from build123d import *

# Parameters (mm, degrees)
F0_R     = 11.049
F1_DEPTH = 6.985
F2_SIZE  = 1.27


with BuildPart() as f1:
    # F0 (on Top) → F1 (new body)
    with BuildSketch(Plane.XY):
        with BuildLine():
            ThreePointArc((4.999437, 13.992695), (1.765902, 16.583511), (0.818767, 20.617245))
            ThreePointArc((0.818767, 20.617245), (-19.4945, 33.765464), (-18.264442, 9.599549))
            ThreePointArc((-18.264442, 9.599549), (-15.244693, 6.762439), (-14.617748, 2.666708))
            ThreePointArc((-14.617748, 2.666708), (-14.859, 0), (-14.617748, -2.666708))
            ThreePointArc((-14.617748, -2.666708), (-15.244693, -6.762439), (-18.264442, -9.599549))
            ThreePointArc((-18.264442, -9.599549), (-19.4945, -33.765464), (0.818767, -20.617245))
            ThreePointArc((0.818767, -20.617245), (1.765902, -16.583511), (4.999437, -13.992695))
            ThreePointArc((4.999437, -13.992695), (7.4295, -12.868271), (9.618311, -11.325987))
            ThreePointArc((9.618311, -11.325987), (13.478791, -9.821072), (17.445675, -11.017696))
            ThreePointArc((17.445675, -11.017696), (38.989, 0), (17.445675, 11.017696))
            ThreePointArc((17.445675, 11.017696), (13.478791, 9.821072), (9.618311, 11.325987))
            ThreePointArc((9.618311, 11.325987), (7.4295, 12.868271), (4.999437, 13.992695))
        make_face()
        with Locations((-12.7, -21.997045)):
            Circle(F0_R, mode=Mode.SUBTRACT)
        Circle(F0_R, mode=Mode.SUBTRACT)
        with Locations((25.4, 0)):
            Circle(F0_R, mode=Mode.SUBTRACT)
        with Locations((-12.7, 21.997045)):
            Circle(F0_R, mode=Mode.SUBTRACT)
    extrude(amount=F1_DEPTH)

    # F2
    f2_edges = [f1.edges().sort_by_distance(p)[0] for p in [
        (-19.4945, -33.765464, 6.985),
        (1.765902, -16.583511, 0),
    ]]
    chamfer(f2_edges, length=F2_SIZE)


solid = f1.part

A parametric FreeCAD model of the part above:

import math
import FreeCAD as App
import Part
import Sketcher

V = App.Vector
Q = App.Units.Quantity


def edges_at(feature, points):
    """Names of the edges that pass closest to the given points."""
    edges = feature.Shape.Edges
    near = lambda p: min(range(len(edges)), key=lambda i: edges[i].distToShape(Part.Vertex(*p))[0])
    return sorted({f"Edge{near(p) + 1}" for p in points})

doc = App.newDocument("Part")
body = doc.addObject("PartDesign::Body", "Body")

# Sketch on XY plane
sketch1 = body.newObject("Sketcher::SketchObject", "Sketch")
sketch1.AttachmentSupport = (doc.getObject("XY_Plane"), [""])
sketch1.MapMode = "FlatFace"
sketch1.addGeometry([
    Part.ArcOfCircle(Part.Circle(V(7.135948, 19.972479, 0), V(0, 0, 1), 6.35), math.radians(174.17226), math.radians(250.338753)),  # 0
    Part.ArcOfCircle(Part.Circle(V(-12.7, 21.997045, 0), V(0, 0, 1), 13.589), math.radians(-5.827742), math.radians(245.827743)),  # 1
    Part.ArcOfCircle(Part.Circle(V(-20.864648, 3.806327, 0), V(0, 0, 1), 6.349999), math.radians(-10.338751), math.radians(65.827746)),  # 2
    Part.ArcOfCircle(Part.Circle(V(0.000015, 0, 0), V(0, 0, 1), 14.859015), math.radians(169.661264), math.radians(190.338736)),  # 3
    Part.ArcOfCircle(Part.Circle(V(-20.864648, -3.806327, 0), V(0, 0, 1), 6.349999), math.radians(-65.827746), math.radians(10.338751)),  # 4
    Part.ArcOfCircle(Part.Circle(V(-12.7, -21.997045, 0), V(0, 0, 1), 13.589), math.radians(114.172257), math.radians(365.827742)),  # 5
    Part.ArcOfCircle(Part.Circle(V(7.135948, -19.972479, 0), V(0, 0, 1), 6.35), math.radians(109.661247), math.radians(185.82774)),  # 6
    Part.ArcOfCircle(Part.Circle(V(-0.000017, 0.000031, 0), V(0, 0, 1), 14.859035), math.radians(-70.338724), math.radians(-49.661279)),  # 7
    Part.ArcOfCircle(Part.Circle(V(13.728701, -16.166153, 0), V(0, 0, 1), 6.350001), math.radians(54.172265), math.radians(130.338742)),  # 8
    Part.ArcOfCircle(Part.Circle(V(25.4, 0, 0), V(0, 0, 1), 13.589), math.radians(-125.827742), math.radians(125.827742)),  # 9
    Part.ArcOfCircle(Part.Circle(V(13.728701, 16.166153, 0), V(0, 0, 1), 6.350001), math.radians(-130.338742), math.radians(-54.172265)),  # 10
    Part.ArcOfCircle(Part.Circle(V(-0.000017, -0.000031, 0), V(0, 0, 1), 14.859035), math.radians(49.661279), math.radians(70.338724)),  # 11
    Part.Circle(V(-12.7, -21.997045, 0), V(0, 0, 1), 11.049),  # 12
    Part.Circle(V(0, 0, 0), V(0, 0, 1), 11.049),  # 13
    Part.Circle(V(-12.7, 21.997045, 0), V(0, 0, 1), 11.049),  # 14
    Part.Circle(V(25.4, 0, 0), V(0, 0, 1), 11.049),  # 15
], False)
sketch1.addConstraint([
    Sketcher.Constraint("Coincident", 0, 1, 1, 1),
    Sketcher.Constraint("Coincident", 1, 2, 2, 2),
    Sketcher.Constraint("Coincident", 2, 1, 3, 1),
    Sketcher.Constraint("Coincident", 3, 2, 4, 2),
    Sketcher.Constraint("Coincident", 4, 1, 5, 1),
    Sketcher.Constraint("Coincident", 5, 2, 6, 2),
    Sketcher.Constraint("Coincident", 6, 1, 7, 1),
    Sketcher.Constraint("Coincident", 7, 2, 8, 2),
    Sketcher.Constraint("Coincident", 8, 1, 9, 1),
    Sketcher.Constraint("Coincident", 9, 2, 10, 2),
    Sketcher.Constraint("Coincident", 10, 1, 11, 1),
    Sketcher.Constraint("Coincident", 11, 2, 0, 2),
    Sketcher.Constraint("Coincident", 13, 3, -1, 1),
    Sketcher.Constraint("Coincident", 12, 3, 5, 3),
    Sketcher.Constraint("Coincident", 14, 3, 1, 3),
    Sketcher.Constraint("Coincident", 15, 3, 9, 3),
    Sketcher.Constraint("PointOnObject", 3, 3, -1),
    Sketcher.Constraint("PointOnObject", 9, 3, -1),
    Sketcher.Constraint("Diameter", 12, Q("0.87 in")),
    Sketcher.Constraint("Diameter", 13, Q("0.87 in")),
    Sketcher.Constraint("Diameter", 14, Q("0.87 in")),
    Sketcher.Constraint("Diameter", 15, Q("0.87 in")),
    Sketcher.Constraint("Radius", 0, Q("0.25 in")),
    Sketcher.Constraint("Radius", 2, Q("0.25 in")),
    Sketcher.Constraint("Radius", 4, Q("0.25 in")),
    Sketcher.Constraint("Radius", 6, Q("0.25 in")),
    Sketcher.Constraint("Radius", 8, Q("0.25 in")),
    Sketcher.Constraint("Radius", 10, Q("0.25 in")),
    Sketcher.Constraint("DistanceX", -1, 1, 9, 3, Q("1 in")),
    Sketcher.Constraint("Radius", 1, Q("0.535 in")),
    Sketcher.Constraint("Radius", 5, Q("0.535 in")),
    Sketcher.Constraint("Radius", 9, Q("0.535 in")),
    Sketcher.Constraint("DistanceX", 1, 3, -1, 1, Q("0.5 in")),
    Sketcher.Constraint("DistanceX", 5, 3, -1, 1, Q("0.5 in")),
    Sketcher.Constraint("DistanceX", -1, 1, 8, 3, Q("0.5405 in")),
    Sketcher.Constraint("DistanceX", -1, 1, 10, 3, Q("0.5405 in")),
    Sketcher.Constraint("Radius", 3, Q("14.859015 mm")),
    Sketcher.Constraint("Radius", 7, Q("14.859035 mm")),
    Sketcher.Constraint("Radius", 11, Q("14.859035 mm")),
    Sketcher.Constraint("DistanceY", 0, 1, 14, 3, Q("1.3798 mm")),
    Sketcher.Constraint("DistanceX", 2, 3, 2, 1, Q("6.2469 mm")),
    Sketcher.Constraint("DistanceX", 4, 3, 2, 1, Q("6.2469 mm")),
    Sketcher.Constraint("DistanceX", 4, 3, 3, 2, Q("6.2469 mm")),
    Sketcher.Constraint("DistanceY", 12, 3, 5, 2, Q("1.3798 mm")),
    Sketcher.Constraint("DistanceY", 6, 1, 8, 1, Q("2.974999 mm")),
    Sketcher.Constraint("DistanceY", 9, 2, 11, 2, Q("2.974999 mm")),
    Sketcher.Constraint("DistanceY", -1, 1, 0, 3, Q("19.972479 mm")),
    Sketcher.Constraint("DistanceY", 6, 3, -1, 1, Q("19.972479 mm")),
    Sketcher.Constraint("DistanceY", -1, 1, 1, 2, Q("9.599549 mm")),
    Sketcher.Constraint("DistanceX", 3, 2, -1, 1, Q("14.617748 mm")),
    Sketcher.Constraint("DistanceY", 3, 2, -1, 1, Q("2.666708 mm")),
    Sketcher.Constraint("DistanceX", 4, 1, -1, 1, Q("18.264442 mm")),
    Sketcher.Constraint("DistanceX", -1, 1, 7, 2, Q("9.618311 mm")),
    Sketcher.Constraint("DistanceX", -1, 1, 10, 1, Q("9.618311 mm")),
    Sketcher.Constraint("DistanceX", 6, 1, 6, 3, Q("2.136511 mm")),
    Sketcher.Constraint("DistanceY", 9, 2, 0, 1, Q("9.599549 mm")),
])
pad1 = body.newObject("PartDesign::Pad", "Pad")
pad1.Profile = sketch1
pad1.Length = Q("0.275 in")
doc.recompute()

chamfer = body.newObject("PartDesign::Chamfer", "Chamfer")
chamfer.Base = (pad1, edges_at(pad1, [(-19.495, -33.765, 6.985), (1.766, -16.584, 0)]))
chamfer.Size = Q("0.05 in")

doc.recompute()
